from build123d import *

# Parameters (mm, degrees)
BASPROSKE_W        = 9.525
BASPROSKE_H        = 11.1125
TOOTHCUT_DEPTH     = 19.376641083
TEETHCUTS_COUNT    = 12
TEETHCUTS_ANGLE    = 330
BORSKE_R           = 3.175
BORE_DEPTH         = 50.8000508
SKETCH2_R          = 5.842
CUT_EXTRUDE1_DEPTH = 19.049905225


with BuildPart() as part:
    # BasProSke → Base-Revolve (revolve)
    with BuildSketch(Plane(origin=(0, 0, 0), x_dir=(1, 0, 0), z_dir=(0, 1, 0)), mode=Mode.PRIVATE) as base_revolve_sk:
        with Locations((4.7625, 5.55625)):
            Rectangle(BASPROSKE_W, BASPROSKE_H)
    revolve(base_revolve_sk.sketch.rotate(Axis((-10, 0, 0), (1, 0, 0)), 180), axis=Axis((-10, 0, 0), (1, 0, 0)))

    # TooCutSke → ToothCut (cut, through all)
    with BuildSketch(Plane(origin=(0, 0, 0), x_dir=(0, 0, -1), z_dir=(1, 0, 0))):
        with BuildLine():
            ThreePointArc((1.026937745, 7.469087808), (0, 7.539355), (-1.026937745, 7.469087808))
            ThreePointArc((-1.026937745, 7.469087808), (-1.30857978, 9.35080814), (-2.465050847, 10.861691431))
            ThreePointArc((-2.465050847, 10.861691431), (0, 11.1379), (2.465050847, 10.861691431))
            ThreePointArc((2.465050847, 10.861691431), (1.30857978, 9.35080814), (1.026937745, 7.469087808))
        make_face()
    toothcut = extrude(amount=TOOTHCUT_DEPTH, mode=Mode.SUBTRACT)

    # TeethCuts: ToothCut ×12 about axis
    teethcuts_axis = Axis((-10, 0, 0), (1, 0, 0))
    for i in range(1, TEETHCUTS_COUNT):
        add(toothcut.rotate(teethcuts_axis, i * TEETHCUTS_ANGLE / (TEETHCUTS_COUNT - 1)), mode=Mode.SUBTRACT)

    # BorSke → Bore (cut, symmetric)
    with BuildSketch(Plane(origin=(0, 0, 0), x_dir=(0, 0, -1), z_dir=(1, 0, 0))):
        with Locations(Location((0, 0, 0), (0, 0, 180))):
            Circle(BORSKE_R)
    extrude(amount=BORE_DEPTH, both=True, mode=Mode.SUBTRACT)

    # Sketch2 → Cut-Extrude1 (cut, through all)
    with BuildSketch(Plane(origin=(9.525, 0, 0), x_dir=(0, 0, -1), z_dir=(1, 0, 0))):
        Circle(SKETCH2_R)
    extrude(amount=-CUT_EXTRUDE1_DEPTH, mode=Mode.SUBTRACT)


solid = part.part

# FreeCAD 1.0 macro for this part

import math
import FreeCAD as App
import Part
import Sketcher
from FreeCAD import Vector
Q = App.Units.Quantity

doc = App.newDocument("Part")
body = doc.addObject("PartDesign::Body", "Body")

sketch1 = body.newObject("Sketcher::SketchObject", "Sketch")
sketch1.AttachmentSupport = (doc.getObject("XZ_Plane"), [""])
sketch1.MapMode = "FlatFace"
sketch1.addGeometry([
    Part.LineSegment(Vector(0, -11.1125, 0), Vector(0, 0, 0)),
    Part.LineSegment(Vector(0, 0, 0), Vector(9.525, 0, 0)),
    Part.LineSegment(Vector(9.525, 0, 0), Vector(9.525, -11.1125, 0)),
    Part.LineSegment(Vector(9.525, -11.1125, 0), Vector(0, -11.1125, 0)),
], False)
sketch1.addConstraint([
    Sketcher.Constraint("Coincident", 0, 2, 1, 1),
    Sketcher.Constraint("Coincident", 1, 2, 2, 1),
    Sketcher.Constraint("Coincident", 2, 2, 3, 1),
    Sketcher.Constraint("Coincident", 3, 2, 0, 1),
    Sketcher.Constraint("Vertical", 0),
    Sketcher.Constraint("Horizontal", 1),
    Sketcher.Constraint("Vertical", 2),
    Sketcher.Constraint("Horizontal", 3),
    Sketcher.Constraint("Coincident", 0, 2, -1, 1),
    Sketcher.Constraint("DistanceX", 1, 1, 1, 2, Q("0.375 in")),
    Sketcher.Constraint("DistanceY", 0, 1, 0, 2, Q("0.4375 in")),
])
revolution = body.newObject("PartDesign::Revolution", "Revolution")
revolution.Profile = sketch1
revolution.ReferenceAxis = (sketch1, ["H_Axis"])
revolution.Angle = 360

sketch2 = body.newObject("Sketcher::SketchObject", "Sketch001")
sketch2.AttachmentSupport = (doc.getObject("YZ_Plane"), [""])
sketch2.MapMode = "FlatFace"
sketch2.addGeometry([
    Part.ArcOfCircle(Part.Circle(Vector(0, 0, 0), Vector(0, 0, 1), 7.539355), math.radians(-7.828611), math.radians(7.828611)),
    Part.ArcOfCircle(Part.Circle(Vector(7.863841, -4.816432, 0), Vector(0, 0, 1), 3.81), math.radians(38.109075), math.radians(95.947081)),
    Part.ArcOfCircle(Part.Circle(Vector(0, 0, 0), Vector(0, 0, 1), 11.1379), math.radians(-12.786632), math.radians(12.786632)),
    Part.ArcOfCircle(Part.Circle(Vector(7.863841, 4.816432, 0), Vector(0, 0, 1), 3.81), math.radians(-95.947081), math.radians(-38.109075)),
], False)
sketch2.addConstraint([
    Sketcher.Constraint("Coincident", 0, 1, 1, 2),
    Sketcher.Constraint("Coincident", 1, 1, 2, 1),
    Sketcher.Constraint("Coincident", 2, 2, 3, 2),
    Sketcher.Constraint("Coincident", 3, 1, 0, 2),
    Sketcher.Constraint("Coincident", 0, 3, -1, 1),
    Sketcher.Constraint("Coincident", 2, 3, -1, 1),
    Sketcher.Constraint("Equal", 1, 3),
    Sketcher.Constraint("Symmetric", 1, 3, 3, 3, -1),
    Sketcher.Constraint("Radius", 1, Q("0.15 in")),
    Sketcher.Constraint("Radius", 2, Q("0.4385 in")),
    Sketcher.Constraint("DistanceX", -1, 1, 1, 3, Q("0.3096001 in")),
    Sketcher.Constraint("Radius", 0, 7.539355),
    Sketcher.Constraint("DistanceY", 1, 1, 2, 2, 4.930102),
])
pocket1 = body.newObject("PartDesign::Pocket", "Pocket")
pocket1.Profile = sketch2
pocket1.Type = "ThroughAll"
pocket1.Reversed = True
doc.recompute()

polarpattern = body.newObject("PartDesign::PolarPattern", "PolarPattern")
polarpattern.Originals = [pocket1]
polarpattern.Axis = (doc.getObject("X_Axis"), [""])
polarpattern.Angle = 360
polarpattern.Occurrences = 12
body.Tip = polarpattern

sketch3 = body.newObject("Sketcher::SketchObject", "Sketch002")
sketch3.AttachmentSupport = (doc.getObject("YZ_Plane"), [""])
sketch3.MapMode = "FlatFace"
sketch3.addGeometry(Part.Circle(Vector(0, 0, 0), Vector(0, 0, 1), 3.175), False)
sketch3.addConstraint([
    Sketcher.Constraint("Coincident", 0, 3, -1, 1),
    Sketcher.Constraint("Diameter", 0, Q("0.25 in")),
])
pocket2 = body.newObject("PartDesign::Pocket", "Pocket001")
pocket2.Profile = sketch3
pocket2.Length = 101.600102
pocket2.Midplane = True

sketch4 = body.newObject("Sketcher::SketchObject", "Sketch003")
sketch4.AttachmentSupport = (doc.getObject("YZ_Plane"), [""])
sketch4.MapMode = "FlatFace"
sketch4.AttachmentOffset = App.Placement(Vector(0, 0, 0.375 * 25.4), App.Rotation())
sketch4.addGeometry(Part.Circle(Vector(0, 0, 0), Vector(0, 0, 1), 5.842), False)
sketch4.addConstraint([
    Sketcher.Constraint("Coincident", 0, 3, -1, 1),
    Sketcher.Constraint("Diameter", 0, Q("0.46 in")),
])
pocket3 = body.newObject("PartDesign::Pocket", "Pocket002")
pocket3.Profile = sketch4
pocket3.Type = "ThroughAll"

doc.recompute()
